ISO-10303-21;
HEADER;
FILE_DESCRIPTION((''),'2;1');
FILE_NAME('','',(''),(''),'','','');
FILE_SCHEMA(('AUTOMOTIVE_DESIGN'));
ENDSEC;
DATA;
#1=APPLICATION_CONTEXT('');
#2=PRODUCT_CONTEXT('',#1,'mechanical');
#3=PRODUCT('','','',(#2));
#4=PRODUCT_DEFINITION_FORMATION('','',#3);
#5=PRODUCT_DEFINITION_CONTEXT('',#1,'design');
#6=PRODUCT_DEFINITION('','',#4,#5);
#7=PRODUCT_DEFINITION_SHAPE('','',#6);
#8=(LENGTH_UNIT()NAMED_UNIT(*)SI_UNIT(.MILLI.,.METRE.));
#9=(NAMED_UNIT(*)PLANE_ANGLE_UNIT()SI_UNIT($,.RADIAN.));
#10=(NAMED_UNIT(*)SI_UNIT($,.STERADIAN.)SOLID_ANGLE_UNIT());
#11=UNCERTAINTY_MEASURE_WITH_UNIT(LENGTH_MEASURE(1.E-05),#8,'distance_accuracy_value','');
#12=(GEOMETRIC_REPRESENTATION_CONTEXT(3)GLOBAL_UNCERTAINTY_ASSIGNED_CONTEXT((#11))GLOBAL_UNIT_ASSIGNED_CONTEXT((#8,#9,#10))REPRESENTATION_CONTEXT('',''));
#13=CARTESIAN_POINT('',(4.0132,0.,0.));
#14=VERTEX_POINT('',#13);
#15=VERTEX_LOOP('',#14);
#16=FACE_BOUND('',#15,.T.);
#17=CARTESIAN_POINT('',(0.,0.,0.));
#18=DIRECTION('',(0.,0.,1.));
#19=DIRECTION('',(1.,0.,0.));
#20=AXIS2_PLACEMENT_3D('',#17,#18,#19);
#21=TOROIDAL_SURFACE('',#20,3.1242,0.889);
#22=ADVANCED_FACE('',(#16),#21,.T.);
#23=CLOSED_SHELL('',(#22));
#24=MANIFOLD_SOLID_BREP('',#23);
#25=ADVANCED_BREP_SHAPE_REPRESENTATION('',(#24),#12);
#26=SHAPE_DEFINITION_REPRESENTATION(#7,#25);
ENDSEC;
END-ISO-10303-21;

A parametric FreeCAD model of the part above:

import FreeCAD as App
import Part
import Sketcher

V = App.Vector
Q = App.Units.Quantity

doc = App.newDocument("Part")
body = doc.addObject("PartDesign::Body", "Body")

# Sketch on YZ plane
sketch1 = body.newObject("Sketcher::SketchObject", "Sketch")
sketch1.AttachmentSupport = (doc.getObject("YZ_Plane"), [""])
sketch1.MapMode = "FlatFace"
sketch1.addGeometry(Part.Circle(V(-3.1242, 0, 0), V(0, 0, 1), 0.889), False)
sketch1.addConstraint(Sketcher.Constraint("PointOnObject", 0, 3, -1))
sketch1.addConstraint(Sketcher.Constraint("Diameter", 0, Q("0.07 in")))
sketch1.addConstraint(Sketcher.Constraint("DistanceX", 0, 3, -1, 1, Q("0.123 in")))
revolution = body.newObject("PartDesign::Revolution", "Revolution")
revolution.Profile = sketch1
revolution.ReferenceAxis = (sketch1, ["V_Axis"])
revolution.Angle = 360

doc.recompute()
